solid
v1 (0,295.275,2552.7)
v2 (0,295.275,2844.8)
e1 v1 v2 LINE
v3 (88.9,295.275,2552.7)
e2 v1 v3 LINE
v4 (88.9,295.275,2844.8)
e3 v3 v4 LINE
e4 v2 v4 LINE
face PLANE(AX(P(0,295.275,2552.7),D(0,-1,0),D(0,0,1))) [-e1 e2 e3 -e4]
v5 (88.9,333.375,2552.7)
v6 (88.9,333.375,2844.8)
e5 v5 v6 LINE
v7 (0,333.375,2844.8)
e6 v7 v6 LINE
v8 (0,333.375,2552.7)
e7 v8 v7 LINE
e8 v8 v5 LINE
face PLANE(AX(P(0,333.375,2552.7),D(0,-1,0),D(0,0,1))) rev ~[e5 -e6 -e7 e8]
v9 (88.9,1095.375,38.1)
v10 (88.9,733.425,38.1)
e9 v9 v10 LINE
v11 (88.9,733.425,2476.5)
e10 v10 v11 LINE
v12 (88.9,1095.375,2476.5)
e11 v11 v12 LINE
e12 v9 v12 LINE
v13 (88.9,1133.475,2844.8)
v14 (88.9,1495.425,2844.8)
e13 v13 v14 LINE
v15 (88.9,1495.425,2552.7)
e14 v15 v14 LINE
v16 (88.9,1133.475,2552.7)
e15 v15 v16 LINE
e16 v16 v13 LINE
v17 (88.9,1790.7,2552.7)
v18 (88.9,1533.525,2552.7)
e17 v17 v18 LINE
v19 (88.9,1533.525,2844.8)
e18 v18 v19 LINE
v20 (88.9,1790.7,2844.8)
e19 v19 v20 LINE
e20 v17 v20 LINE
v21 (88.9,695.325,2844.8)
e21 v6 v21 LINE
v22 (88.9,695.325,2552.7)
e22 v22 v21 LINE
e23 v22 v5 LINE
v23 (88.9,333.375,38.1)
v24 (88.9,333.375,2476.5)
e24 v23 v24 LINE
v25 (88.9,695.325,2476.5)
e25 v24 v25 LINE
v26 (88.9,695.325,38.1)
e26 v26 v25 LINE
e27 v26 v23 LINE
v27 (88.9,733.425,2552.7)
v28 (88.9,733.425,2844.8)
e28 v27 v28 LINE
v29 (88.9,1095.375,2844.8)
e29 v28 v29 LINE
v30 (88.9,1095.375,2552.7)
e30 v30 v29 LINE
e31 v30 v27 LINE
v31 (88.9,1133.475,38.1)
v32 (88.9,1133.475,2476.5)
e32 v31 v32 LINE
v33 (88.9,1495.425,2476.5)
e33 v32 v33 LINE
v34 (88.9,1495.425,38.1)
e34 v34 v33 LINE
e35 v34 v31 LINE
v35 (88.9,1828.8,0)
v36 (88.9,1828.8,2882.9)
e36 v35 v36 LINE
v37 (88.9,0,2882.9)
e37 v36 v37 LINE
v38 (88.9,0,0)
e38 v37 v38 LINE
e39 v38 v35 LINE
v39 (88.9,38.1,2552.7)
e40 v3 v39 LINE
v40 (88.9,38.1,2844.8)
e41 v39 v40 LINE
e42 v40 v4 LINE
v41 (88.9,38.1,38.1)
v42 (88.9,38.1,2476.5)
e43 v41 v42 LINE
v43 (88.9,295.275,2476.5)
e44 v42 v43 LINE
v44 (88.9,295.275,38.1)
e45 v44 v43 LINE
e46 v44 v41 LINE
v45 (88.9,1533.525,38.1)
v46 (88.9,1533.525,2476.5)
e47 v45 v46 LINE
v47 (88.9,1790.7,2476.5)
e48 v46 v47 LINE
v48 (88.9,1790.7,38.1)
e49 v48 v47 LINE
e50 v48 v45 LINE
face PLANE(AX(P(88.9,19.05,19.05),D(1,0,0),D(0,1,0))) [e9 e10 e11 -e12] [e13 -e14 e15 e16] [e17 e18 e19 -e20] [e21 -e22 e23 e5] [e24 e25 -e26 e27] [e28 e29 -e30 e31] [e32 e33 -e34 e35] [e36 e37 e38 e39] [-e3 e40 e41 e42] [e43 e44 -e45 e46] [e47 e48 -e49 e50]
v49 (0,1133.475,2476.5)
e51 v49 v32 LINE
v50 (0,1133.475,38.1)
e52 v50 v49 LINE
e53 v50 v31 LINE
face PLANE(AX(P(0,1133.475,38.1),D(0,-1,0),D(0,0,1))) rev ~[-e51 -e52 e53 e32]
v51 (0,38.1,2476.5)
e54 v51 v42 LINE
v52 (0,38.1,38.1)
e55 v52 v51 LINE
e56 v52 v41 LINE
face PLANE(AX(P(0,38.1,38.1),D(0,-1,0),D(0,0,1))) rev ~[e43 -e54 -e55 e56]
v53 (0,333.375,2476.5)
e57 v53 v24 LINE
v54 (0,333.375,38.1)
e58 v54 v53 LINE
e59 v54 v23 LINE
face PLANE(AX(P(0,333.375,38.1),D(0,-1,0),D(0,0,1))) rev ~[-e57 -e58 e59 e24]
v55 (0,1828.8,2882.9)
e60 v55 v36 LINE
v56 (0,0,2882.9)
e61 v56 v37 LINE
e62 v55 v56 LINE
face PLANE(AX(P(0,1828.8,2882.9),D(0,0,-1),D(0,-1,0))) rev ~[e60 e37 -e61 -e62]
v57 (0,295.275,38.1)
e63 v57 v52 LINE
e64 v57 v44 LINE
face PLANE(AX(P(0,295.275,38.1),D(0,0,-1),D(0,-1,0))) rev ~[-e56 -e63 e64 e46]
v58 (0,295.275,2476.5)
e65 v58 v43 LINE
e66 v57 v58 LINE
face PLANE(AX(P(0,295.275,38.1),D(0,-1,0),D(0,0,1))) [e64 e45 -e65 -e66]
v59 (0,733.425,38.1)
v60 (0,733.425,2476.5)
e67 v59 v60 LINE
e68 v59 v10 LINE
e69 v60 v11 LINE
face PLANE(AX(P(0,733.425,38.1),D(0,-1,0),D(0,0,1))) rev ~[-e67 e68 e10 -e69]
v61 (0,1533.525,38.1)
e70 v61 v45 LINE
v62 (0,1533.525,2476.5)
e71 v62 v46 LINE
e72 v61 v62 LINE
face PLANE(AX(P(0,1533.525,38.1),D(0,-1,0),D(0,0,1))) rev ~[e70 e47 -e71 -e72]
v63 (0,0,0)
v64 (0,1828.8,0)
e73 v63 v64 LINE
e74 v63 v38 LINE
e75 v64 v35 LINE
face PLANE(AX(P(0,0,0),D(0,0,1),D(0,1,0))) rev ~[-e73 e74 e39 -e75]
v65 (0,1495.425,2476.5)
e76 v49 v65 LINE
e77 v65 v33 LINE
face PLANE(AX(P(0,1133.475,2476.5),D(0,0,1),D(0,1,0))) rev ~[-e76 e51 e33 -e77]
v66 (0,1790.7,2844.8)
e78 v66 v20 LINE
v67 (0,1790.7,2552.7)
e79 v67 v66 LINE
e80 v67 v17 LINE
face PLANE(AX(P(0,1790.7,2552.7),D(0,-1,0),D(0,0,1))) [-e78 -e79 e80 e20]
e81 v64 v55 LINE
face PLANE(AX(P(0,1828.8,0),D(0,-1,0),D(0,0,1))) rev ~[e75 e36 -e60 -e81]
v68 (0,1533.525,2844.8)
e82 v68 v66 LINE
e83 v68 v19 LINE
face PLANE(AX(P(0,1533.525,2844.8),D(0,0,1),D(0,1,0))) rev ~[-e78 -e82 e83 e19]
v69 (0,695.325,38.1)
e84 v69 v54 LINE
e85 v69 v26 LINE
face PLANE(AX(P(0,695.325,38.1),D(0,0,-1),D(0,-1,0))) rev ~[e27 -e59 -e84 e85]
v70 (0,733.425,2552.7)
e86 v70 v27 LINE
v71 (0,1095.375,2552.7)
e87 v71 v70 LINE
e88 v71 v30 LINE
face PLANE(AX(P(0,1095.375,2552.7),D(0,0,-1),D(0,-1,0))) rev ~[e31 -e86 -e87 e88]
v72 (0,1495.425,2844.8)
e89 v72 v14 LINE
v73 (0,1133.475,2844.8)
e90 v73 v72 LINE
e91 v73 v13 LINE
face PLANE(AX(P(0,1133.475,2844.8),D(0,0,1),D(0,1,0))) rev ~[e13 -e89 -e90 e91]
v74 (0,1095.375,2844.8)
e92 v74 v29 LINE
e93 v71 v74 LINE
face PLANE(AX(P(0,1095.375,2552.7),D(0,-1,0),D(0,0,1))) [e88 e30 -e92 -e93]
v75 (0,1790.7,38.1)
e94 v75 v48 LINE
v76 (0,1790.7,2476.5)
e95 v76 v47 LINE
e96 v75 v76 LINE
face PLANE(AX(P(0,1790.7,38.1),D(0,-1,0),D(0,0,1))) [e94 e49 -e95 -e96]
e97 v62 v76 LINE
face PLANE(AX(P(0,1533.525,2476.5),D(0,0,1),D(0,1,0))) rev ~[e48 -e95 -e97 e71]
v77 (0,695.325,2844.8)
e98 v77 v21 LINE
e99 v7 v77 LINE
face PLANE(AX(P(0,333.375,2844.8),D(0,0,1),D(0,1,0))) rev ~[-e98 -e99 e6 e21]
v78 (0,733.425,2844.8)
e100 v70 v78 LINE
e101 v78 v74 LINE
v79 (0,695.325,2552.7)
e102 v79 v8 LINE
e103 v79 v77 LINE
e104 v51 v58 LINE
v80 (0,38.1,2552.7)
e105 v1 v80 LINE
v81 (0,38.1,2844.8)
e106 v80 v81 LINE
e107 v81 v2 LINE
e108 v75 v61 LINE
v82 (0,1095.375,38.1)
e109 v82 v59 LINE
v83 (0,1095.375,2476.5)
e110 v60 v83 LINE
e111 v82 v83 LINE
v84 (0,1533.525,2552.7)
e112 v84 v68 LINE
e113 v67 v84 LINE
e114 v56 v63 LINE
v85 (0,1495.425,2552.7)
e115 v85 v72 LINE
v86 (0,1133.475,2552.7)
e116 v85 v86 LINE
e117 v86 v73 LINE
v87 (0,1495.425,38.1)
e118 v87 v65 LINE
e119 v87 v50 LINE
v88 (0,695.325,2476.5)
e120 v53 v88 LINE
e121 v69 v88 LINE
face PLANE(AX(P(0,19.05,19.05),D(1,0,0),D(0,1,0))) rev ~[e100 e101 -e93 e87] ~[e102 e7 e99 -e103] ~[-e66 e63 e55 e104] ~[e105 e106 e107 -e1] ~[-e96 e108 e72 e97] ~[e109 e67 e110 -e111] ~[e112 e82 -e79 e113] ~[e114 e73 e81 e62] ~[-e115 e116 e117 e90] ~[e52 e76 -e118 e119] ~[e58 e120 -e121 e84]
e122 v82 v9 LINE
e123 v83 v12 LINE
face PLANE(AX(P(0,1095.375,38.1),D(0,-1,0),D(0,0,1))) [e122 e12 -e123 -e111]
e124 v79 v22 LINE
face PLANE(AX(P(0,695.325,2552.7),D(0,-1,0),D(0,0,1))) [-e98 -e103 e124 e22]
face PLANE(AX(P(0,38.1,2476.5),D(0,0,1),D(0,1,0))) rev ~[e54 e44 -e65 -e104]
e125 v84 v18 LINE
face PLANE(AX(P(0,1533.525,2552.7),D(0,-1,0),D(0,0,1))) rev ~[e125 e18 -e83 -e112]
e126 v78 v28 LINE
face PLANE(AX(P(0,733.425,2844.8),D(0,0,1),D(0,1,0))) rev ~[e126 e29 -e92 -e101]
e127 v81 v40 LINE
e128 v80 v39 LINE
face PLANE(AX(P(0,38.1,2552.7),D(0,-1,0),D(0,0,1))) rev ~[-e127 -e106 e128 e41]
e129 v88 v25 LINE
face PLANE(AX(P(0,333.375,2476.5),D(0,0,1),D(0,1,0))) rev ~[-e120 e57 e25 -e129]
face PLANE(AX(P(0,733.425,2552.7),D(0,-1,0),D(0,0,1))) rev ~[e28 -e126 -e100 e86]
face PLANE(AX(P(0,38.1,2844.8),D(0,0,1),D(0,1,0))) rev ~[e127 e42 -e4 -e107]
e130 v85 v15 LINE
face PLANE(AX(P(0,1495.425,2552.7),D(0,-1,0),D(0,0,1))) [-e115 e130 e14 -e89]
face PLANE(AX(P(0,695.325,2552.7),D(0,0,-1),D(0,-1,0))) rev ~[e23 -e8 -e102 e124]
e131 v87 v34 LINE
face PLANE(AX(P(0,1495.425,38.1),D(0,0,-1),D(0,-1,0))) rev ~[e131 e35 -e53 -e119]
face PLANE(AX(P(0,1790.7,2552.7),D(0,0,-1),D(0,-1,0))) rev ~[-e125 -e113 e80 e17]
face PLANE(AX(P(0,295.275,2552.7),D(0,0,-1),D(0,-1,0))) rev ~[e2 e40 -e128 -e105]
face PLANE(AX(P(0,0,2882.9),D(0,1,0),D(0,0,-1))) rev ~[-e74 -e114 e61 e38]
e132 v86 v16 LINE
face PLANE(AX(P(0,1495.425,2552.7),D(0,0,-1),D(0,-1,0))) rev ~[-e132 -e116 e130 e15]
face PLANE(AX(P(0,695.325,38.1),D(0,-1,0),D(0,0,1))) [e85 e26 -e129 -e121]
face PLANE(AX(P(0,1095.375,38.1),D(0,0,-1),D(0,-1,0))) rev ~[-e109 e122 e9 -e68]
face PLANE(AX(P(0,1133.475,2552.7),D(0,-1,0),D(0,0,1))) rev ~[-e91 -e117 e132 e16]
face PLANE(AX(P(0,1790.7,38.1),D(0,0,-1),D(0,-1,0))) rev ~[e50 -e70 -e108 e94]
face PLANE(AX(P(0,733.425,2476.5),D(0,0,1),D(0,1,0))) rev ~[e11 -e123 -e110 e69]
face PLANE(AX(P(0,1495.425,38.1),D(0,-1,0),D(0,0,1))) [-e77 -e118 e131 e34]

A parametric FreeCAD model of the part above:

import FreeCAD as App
import Part
import Sketcher
from FreeCAD import Vector
Q = App.Units.Quantity


def add_polygon(sketch, points):
    """Adds a closed chain of lines whose ends are joined by coincident constraints."""
    first, n = sketch.GeometryCount, len(points)
    for a, b in zip(points, points[1:] + points[:1]):
        sketch.addGeometry(Part.LineSegment(App.Vector(*a, 0), App.Vector(*b, 0)), False)
    for i in range(n):
        sketch.addConstraint(Sketcher.Constraint("Coincident", first + i, 2, first + (i + 1) % n, 1))

doc = App.newDocument("Part")
body = doc.addObject("PartDesign::Body", "Body")

# Sketch on YZ plane
sketch1 = body.newObject("Sketcher::SketchObject", "Sketch")
sketch1.AttachmentSupport = (doc.getObject("YZ_Plane"), [""])
sketch1.MapMode = "FlatFace"
add_polygon(sketch1, [(0, 0), (1828.8, 0), (1828.8, 2882.9), (0, 2882.9)])  # lines 0-3
add_polygon(sketch1, [(1790.7, 2552.7), (1533.525, 2552.7), (1533.525, 2844.8), (1790.7, 2844.8)])  # lines 4-7
add_polygon(sketch1, [(1495.425, 2552.7), (1133.475, 2552.7), (1133.475, 2844.8), (1495.425, 2844.8)])  # lines 8-11
add_polygon(sketch1, [(1095.375, 2552.7), (733.425, 2552.7), (733.425, 2844.8), (1095.375, 2844.8)])  # lines 12-15
add_polygon(sketch1, [(695.325, 2552.7), (333.375, 2552.7), (333.375, 2844.8), (695.325, 2844.8)])  # lines 16-19
add_polygon(sketch1, [(295.275, 2552.7), (38.1, 2552.7), (38.1, 2844.8), (295.275, 2844.8)])  # lines 20-23
add_polygon(sketch1, [(1790.7, 38.1), (1533.525, 38.1), (1533.525, 2476.5), (1790.7, 2476.5)])  # lines 24-27
add_polygon(sketch1, [(1495.425, 38.1), (1133.475, 38.1), (1133.475, 2476.5), (1495.425, 2476.5)])  # lines 28-31
add_polygon(sketch1, [(1095.375, 38.1), (733.425, 38.1), (733.425, 2476.5), (1095.375, 2476.5)])  # lines 32-35
add_polygon(sketch1, [(695.325, 38.1), (333.375, 38.1), (333.375, 2476.5), (695.325, 2476.5)])  # lines 36-39
add_polygon(sketch1, [(295.275, 38.1), (38.1, 38.1), (38.1, 2476.5), (295.275, 2476.5)])  # lines 40-43
sketch1.addConstraint(Sketcher.Constraint("Horizontal", 0))
sketch1.addConstraint(Sketcher.Constraint("Vertical", 1))
sketch1.addConstraint(Sketcher.Constraint("Horizontal", 2))
sketch1.addConstraint(Sketcher.Constraint("Vertical", 3))
sketch1.addConstraint(Sketcher.Constraint("Horizontal", 4))
sketch1.addConstraint(Sketcher.Constraint("Vertical", 5))
sketch1.addConstraint(Sketcher.Constraint("Horizontal", 6))
sketch1.addConstraint(Sketcher.Constraint("Vertical", 7))
sketch1.addConstraint(Sketcher.Constraint("Horizontal", 8))
sketch1.addConstraint(Sketcher.Constraint("Vertical", 9))
sketch1.addConstraint(Sketcher.Constraint("Horizontal", 10))
sketch1.addConstraint(Sketcher.Constraint("Vertical", 11))
sketch1.addConstraint(Sketcher.Constraint("Horizontal", 12))
sketch1.addConstraint(Sketcher.Constraint("Vertical", 13))
sketch1.addConstraint(Sketcher.Constraint("Horizontal", 14))
sketch1.addConstraint(Sketcher.Constraint("Vertical", 15))
sketch1.addConstraint(Sketcher.Constraint("Horizontal", 16))
sketch1.addConstraint(Sketcher.Constraint("Vertical", 17))
sketch1.addConstraint(Sketcher.Constraint("Horizontal", 18))
sketch1.addConstraint(Sketcher.Constraint("Vertical", 19))
sketch1.addConstraint(Sketcher.Constraint("Horizontal", 20))
sketch1.addConstraint(Sketcher.Constraint("Vertical", 21))
sketch1.addConstraint(Sketcher.Constraint("Horizontal", 22))
sketch1.addConstraint(Sketcher.Constraint("Vertical", 23))
sketch1.addConstraint(Sketcher.Constraint("Horizontal", 24))
sketch1.addConstraint(Sketcher.Constraint("Vertical", 25))
sketch1.addConstraint(Sketcher.Constraint("Horizontal", 26))
sketch1.addConstraint(Sketcher.Constraint("Vertical", 27))
sketch1.addConstraint(Sketcher.Constraint("Horizontal", 28))
sketch1.addConstraint(Sketcher.Constraint("Vertical", 29))
sketch1.addConstraint(Sketcher.Constraint("Horizontal", 30))
sketch1.addConstraint(Sketcher.Constraint("Vertical", 31))
sketch1.addConstraint(Sketcher.Constraint("Horizontal", 32))
sketch1.addConstraint(Sketcher.Constraint("Vertical", 33))
sketch1.addConstraint(Sketcher.Constraint("Horizontal", 34))
sketch1.addConstraint(Sketcher.Constraint("Vertical", 35))
sketch1.addConstraint(Sketcher.Constraint("Horizontal", 36))
sketch1.addConstraint(Sketcher.Constraint("Vertical", 37))
sketch1.addConstraint(Sketcher.Constraint("Horizontal", 38))
sketch1.addConstraint(Sketcher.Constraint("Vertical", 39))
sketch1.addConstraint(Sketcher.Constraint("Horizontal", 40))
sketch1.addConstraint(Sketcher.Constraint("Vertical", 41))
sketch1.addConstraint(Sketcher.Constraint("Horizontal", 42))
sketch1.addConstraint(Sketcher.Constraint("Vertical", 43))
sketch1.addConstraint(Sketcher.Constraint("Coincident", 3, 2, -1, 1))
sketch1.addConstraint(Sketcher.Constraint("Horizontal", 7, 2, 8, 2))
sketch1.addConstraint(Sketcher.Constraint("Horizontal", 6, 2, 9, 2))
sketch1.addConstraint(Sketcher.Constraint("Horizontal", 11, 2, 12, 2))
sketch1.addConstraint(Sketcher.Constraint("Horizontal", 10, 2, 13, 2))
sketch1.addConstraint(Sketcher.Constraint("Horizontal", 15, 2, 16, 2))
sketch1.addConstraint(Sketcher.Constraint("Horizontal", 14, 2, 17, 2))
sketch1.addConstraint(Sketcher.Constraint("Horizontal", 19, 2, 20, 2))
sketch1.addConstraint(Sketcher.Constraint("Horizontal", 18, 2, 21, 2))
sketch1.addConstraint(Sketcher.Constraint("Horizontal", 27, 2, 28, 2))
sketch1.addConstraint(Sketcher.Constraint("Horizontal", 26, 2, 29, 2))
sketch1.addConstraint(Sketcher.Constraint("Horizontal", 31, 2, 32, 2))
sketch1.addConstraint(Sketcher.Constraint("Horizontal", 30, 2, 33, 2))
sketch1.addConstraint(Sketcher.Constraint("Horizontal", 35, 2, 36, 2))
sketch1.addConstraint(Sketcher.Constraint("Horizontal", 34, 2, 37, 2))
sketch1.addConstraint(Sketcher.Constraint("Horizontal", 39, 2, 40, 2))
sketch1.addConstraint(Sketcher.Constraint("Horizontal", 38, 2, 41, 2))
sketch1.addConstraint(Sketcher.Constraint("Vertical", 5, 2, 24, 2))
sketch1.addConstraint(Sketcher.Constraint("Vertical", 7, 2, 26, 2))
sketch1.addConstraint(Sketcher.Constraint("Vertical", 9, 2, 28, 2))
sketch1.addConstraint(Sketcher.Constraint("Vertical", 11, 2, 30, 2))
sketch1.addConstraint(Sketcher.Constraint("Vertical", 13, 2, 32, 2))
sketch1.addConstraint(Sketcher.Constraint("Vertical", 15, 2, 34, 2))
sketch1.addConstraint(Sketcher.Constraint("Vertical", 17, 2, 36, 2))
sketch1.addConstraint(Sketcher.Constraint("Vertical", 19, 2, 38, 2))
sketch1.addConstraint(Sketcher.Constraint("Vertical", 21, 2, 40, 2))
sketch1.addConstraint(Sketcher.Constraint("Vertical", 23, 2, 42, 2))
sketch1.addConstraint(Sketcher.Constraint("Equal", 10, 12))
sketch1.addConstraint(Sketcher.Constraint("Equal", 14, 16))
sketch1.addConstraint(Sketcher.Constraint("Equal", 6, 20))
sketch1.addConstraint(Sketcher.Constraint("DistanceX", 0, 1, 0, 2, Q("72 in")))
sketch1.addConstraint(Sketcher.Constraint("DistanceY", 25, 1, 25, 2, Q("96 in")))
sketch1.addConstraint(Sketcher.Constraint("DistanceY", 1, 1, 1, 2, Q("113.5 in")))
sketch1.addConstraint(Sketcher.Constraint("DistanceY", 5, 1, 5, 2, Q("11.5 in")))
sketch1.addConstraint(Sketcher.Constraint("DistanceY", -1, 1, 5, 2, Q("112 in")))
sketch1.addConstraint(Sketcher.Constraint("DistanceX", 12, 2, 11, 2, Q("30 in")))
sketch1.addConstraint(Sketcher.Constraint("DistanceX", 16, 2, 15, 2, Q("30 in")))
sketch1.addConstraint(Sketcher.Constraint("DistanceY", 24, 2, 4, 2, Q("99 in")))
sketch1.addConstraint(Sketcher.Constraint("DistanceX", 8, 2, 8, 1, Q("14.25 in")))
sketch1.addConstraint(Sketcher.Constraint("DistanceX", -1, 1, 6, 2, Q("70.5 in")))
sketch1.addConstraint(Sketcher.Constraint("DistanceX", -1, 1, 20, 2, Q("1.5 in")))
sketch1.addConstraint(Sketcher.Constraint("DistanceX", 10, 2, 5, 2, Q("1.5 in")))
sketch1.addConstraint(Sketcher.Constraint("DistanceX", 22, 2, 17, 2, Q("1.5 in")))
pad1 = body.newObject("PartDesign::Pad", "Pad")
pad1.Profile = sketch1
pad1.Length = Q("3.5 in")

doc.recompute()
